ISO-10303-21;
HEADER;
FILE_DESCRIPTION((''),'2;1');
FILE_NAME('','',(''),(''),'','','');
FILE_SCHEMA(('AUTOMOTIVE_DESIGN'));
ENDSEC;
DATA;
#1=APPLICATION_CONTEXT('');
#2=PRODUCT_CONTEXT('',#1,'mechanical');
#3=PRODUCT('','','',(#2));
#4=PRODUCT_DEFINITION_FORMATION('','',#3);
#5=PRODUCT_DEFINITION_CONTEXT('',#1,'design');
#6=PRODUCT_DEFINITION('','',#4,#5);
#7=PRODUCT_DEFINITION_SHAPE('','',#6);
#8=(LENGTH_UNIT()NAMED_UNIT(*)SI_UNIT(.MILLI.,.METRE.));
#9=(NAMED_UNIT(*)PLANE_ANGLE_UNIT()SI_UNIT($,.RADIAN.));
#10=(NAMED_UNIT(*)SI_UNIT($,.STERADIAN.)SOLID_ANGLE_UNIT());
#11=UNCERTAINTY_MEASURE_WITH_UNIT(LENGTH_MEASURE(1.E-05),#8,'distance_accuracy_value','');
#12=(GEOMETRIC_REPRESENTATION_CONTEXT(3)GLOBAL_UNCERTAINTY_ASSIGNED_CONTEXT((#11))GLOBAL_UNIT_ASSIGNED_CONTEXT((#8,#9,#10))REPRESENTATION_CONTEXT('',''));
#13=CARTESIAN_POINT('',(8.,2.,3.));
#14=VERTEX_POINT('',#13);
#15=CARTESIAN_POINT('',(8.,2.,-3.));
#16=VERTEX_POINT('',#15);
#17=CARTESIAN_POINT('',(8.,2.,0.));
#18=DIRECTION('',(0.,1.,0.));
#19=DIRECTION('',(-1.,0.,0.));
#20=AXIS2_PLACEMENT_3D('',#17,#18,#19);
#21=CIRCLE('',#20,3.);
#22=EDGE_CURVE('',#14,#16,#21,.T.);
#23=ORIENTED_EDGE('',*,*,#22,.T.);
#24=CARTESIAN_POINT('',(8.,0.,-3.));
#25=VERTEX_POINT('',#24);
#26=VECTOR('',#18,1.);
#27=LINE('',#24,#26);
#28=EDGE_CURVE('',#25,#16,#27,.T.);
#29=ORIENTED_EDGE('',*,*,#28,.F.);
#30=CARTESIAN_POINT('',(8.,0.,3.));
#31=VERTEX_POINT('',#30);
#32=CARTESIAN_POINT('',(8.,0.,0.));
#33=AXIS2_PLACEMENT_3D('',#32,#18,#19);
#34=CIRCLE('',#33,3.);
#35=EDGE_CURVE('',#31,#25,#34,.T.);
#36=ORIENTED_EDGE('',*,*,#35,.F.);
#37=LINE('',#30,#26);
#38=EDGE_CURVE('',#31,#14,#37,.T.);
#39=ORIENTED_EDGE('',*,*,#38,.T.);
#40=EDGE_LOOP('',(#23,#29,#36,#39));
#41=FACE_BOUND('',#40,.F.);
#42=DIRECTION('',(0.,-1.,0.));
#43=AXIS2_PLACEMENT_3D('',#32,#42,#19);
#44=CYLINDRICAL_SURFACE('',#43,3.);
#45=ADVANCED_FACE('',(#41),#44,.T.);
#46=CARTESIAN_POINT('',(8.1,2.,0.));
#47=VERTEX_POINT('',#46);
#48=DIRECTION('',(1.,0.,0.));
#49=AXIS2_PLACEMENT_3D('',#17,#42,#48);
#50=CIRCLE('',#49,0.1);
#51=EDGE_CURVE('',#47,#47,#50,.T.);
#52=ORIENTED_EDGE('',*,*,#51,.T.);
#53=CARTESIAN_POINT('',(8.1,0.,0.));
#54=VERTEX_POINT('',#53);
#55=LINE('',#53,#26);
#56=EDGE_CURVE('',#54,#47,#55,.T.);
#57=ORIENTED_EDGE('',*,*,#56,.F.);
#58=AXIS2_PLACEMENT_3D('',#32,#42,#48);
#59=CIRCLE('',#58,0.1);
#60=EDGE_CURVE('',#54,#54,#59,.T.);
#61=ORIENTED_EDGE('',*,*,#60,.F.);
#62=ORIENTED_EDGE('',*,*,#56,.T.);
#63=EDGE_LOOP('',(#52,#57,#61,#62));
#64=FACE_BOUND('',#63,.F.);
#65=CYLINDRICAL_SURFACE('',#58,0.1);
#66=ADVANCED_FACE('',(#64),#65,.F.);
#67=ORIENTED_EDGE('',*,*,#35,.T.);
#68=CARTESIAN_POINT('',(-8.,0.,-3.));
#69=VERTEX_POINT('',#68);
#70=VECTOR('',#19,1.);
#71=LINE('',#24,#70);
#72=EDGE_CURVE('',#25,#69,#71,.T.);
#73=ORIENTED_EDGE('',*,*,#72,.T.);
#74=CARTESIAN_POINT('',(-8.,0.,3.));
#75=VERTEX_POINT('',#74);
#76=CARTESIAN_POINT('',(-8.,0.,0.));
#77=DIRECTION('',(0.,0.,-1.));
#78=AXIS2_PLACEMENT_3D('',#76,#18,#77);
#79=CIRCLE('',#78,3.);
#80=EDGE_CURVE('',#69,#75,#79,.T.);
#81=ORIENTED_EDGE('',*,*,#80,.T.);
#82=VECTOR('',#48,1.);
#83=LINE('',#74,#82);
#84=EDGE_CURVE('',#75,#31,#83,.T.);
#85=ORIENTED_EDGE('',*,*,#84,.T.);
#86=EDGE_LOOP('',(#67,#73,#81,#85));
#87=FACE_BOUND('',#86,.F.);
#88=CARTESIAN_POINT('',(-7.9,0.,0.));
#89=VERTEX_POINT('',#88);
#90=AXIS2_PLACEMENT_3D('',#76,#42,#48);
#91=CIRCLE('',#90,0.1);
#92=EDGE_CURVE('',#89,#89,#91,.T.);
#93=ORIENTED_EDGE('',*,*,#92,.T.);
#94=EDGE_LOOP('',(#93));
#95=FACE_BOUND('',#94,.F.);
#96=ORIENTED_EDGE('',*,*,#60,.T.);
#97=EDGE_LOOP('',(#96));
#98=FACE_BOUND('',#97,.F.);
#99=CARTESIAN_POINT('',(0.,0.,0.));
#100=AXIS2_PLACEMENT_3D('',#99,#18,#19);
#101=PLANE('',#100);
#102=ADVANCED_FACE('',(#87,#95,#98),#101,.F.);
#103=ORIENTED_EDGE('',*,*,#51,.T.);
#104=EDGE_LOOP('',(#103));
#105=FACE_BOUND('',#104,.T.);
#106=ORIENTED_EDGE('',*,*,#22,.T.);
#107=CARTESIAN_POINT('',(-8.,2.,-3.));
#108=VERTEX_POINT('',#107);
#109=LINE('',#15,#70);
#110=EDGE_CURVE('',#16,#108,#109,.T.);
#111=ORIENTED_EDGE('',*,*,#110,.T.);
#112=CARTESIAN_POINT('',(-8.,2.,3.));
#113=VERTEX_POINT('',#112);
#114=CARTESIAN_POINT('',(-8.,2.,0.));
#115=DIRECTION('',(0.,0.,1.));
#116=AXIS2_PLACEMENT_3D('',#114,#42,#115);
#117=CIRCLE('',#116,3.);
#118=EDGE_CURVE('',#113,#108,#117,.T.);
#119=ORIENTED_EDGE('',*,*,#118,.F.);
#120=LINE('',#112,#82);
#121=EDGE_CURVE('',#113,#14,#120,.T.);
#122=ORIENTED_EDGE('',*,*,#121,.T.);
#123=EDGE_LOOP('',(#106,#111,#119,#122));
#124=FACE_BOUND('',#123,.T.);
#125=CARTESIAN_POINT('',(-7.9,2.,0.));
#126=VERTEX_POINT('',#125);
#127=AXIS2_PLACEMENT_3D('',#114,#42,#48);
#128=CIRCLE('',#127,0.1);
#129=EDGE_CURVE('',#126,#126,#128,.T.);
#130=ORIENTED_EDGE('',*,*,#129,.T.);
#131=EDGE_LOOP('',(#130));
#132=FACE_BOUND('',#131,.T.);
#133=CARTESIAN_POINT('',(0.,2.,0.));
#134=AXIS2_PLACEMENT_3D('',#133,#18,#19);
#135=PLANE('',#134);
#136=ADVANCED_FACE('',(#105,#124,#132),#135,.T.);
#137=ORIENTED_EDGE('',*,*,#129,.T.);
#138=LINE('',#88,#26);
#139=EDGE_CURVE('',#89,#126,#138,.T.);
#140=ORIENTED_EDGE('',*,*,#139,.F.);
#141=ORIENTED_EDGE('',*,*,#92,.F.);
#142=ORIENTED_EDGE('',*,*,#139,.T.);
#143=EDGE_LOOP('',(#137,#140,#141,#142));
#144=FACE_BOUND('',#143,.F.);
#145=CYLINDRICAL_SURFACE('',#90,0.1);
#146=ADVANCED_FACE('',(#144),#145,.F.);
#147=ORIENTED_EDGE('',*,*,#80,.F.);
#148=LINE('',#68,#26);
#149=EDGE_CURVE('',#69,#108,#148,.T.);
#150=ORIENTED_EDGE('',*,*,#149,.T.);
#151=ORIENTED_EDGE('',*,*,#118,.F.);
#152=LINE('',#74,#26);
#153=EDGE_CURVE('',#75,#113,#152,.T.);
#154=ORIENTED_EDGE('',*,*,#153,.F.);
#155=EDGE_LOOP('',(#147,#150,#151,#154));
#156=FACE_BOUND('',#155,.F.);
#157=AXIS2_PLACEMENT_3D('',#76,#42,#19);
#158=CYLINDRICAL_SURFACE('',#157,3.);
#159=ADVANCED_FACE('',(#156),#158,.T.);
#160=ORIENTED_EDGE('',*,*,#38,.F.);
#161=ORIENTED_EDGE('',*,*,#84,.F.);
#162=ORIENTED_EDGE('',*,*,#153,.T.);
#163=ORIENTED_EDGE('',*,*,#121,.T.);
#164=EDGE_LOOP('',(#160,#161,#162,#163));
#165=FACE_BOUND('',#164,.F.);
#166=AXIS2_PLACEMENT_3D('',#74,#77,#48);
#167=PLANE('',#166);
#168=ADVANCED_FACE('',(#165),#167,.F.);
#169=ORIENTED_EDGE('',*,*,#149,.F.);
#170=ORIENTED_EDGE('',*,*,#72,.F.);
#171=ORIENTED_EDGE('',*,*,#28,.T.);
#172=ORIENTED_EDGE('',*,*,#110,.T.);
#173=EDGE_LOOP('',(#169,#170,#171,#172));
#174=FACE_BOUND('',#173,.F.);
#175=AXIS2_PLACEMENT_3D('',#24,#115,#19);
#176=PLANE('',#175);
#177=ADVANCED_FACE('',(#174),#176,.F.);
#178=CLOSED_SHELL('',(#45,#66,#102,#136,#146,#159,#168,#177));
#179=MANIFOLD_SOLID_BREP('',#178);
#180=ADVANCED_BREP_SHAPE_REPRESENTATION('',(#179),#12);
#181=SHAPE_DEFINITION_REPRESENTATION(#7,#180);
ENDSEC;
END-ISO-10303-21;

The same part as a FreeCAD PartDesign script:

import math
import FreeCAD as App
import Part
import Sketcher

doc = App.newDocument("Part")
body = doc.addObject("PartDesign::Body", "Body")

sketch1 = doc.addObject("Sketcher::SketchObject", "Sketch")
body.addObject(sketch1)
sketch1.AttachmentSupport = (doc.XZ_Plane, [""])
sketch1.MapMode = "FlatFace"
sketch1.addGeometry([
    Part.LineSegment(App.Vector(-8, 3, 0), App.Vector(8, 3, 0)),
    Part.ArcOfCircle(Part.Circle(App.Vector(8, 0, 0), App.Vector(0, 0, 1), 3), math.radians(-90), math.radians(90)),
    Part.LineSegment(App.Vector(8, -3, 0), App.Vector(-8, -3, 0)),
    Part.ArcOfCircle(Part.Circle(App.Vector(-8, 0, 0), App.Vector(0, 0, 1), 3), math.radians(90), math.radians(270)),
], False)
sketch1.addConstraint([
    Sketcher.Constraint("Tangent", 0, 2, 1, 2),
    Sketcher.Constraint("Tangent", 1, 1, 2, 1),
    Sketcher.Constraint("Tangent", 2, 2, 3, 2),
    Sketcher.Constraint("Tangent", 3, 1, 0, 1),
    Sketcher.Constraint("Horizontal", 0),
    Sketcher.Constraint("Horizontal", 2),
    Sketcher.Constraint("Symmetric", 1, 3, 3, 3, -1, 1),
    Sketcher.Constraint("Radius", 1, 3.0),
    Sketcher.Constraint("DistanceX", 0, 1, 0, 2, 16.0),
])
pad1 = doc.addObject("PartDesign::Pad", "Pad")
body.addObject(pad1)
pad1.Profile = sketch1
pad1.Length = 2
pad1.Reversed = True

sketch2 = doc.addObject("Sketcher::SketchObject", "Sketch001")
body.addObject(sketch2)
sketch2.AttachmentSupport = (doc.XZ_Plane, [""])
sketch2.MapMode = "FlatFace"
sketch2.AttachmentOffset = App.Placement(App.Vector(0, 0, -2), App.Rotation())
sketch2.addGeometry([
    Part.Circle(App.Vector(-8, 0, 0), App.Vector(0, 0, 1), 1.5),
    Part.Circle(App.Vector(8, 0, 0), App.Vector(0, 0, 1), 1.5),
], False)
sketch2.addConstraint([
    Sketcher.Constraint("Equal", 0, 1),
    Sketcher.Constraint("Symmetric", 0, 3, 1, 3, -1, 1),
    Sketcher.Constraint("PointOnObject", 0, 3, -1),
    Sketcher.Constraint("Diameter", 0, 3.0),
    Sketcher.Constraint("DistanceX", 0, 3, -1, 1, 8.0),
])
pocket1 = doc.addObject("PartDesign::Pocket", "Pocket")
body.addObject(pocket1)
pocket1.Profile = sketch2
pocket1.Length = 2
pocket1.Reversed = True

sketch3 = doc.addObject("Sketcher::SketchObject", "Sketch002")
body.addObject(sketch3)
sketch3.AttachmentSupport = (doc.XZ_Plane, [""])
sketch3.MapMode = "FlatFace"
sketch3.addGeometry([
    Part.Circle(App.Vector(-8, 0, 0), App.Vector(0, 0, 1), 1.5),
    Part.Circle(App.Vector(-8, 0, 0), App.Vector(0, 0, 1), 0.1),
    Part.Circle(App.Vector(8, 0, 0), App.Vector(0, 0, 1), 1.5),
    Part.Circle(App.Vector(8, 0, 0), App.Vector(0, 0, 1), 0.1),
], False)
sketch3.addConstraint([
    Sketcher.Constraint("Coincident", 1, 3, 0, 3),
    Sketcher.Constraint("Coincident", 3, 3, 2, 3),
    Sketcher.Constraint("Equal", 0, 2),
    Sketcher.Constraint("Equal", 1, 3),
    Sketcher.Constraint("Symmetric", 0, 3, 2, 3, -1, 1),
    Sketcher.Constraint("PointOnObject", 0, 3, -1),
    Sketcher.Constraint("Diameter", 1, 0.2),
    Sketcher.Constraint("Diameter", 0, 3.0),
    Sketcher.Constraint("DistanceX", 0, 3, -1, 1, 8.0),
])
pad2 = doc.addObject("PartDesign::Pad", "Pad001")
body.addObject(pad2)
pad2.Profile = sketch3
pad2.Length = 2
pad2.Reversed = True

doc.recompute()
